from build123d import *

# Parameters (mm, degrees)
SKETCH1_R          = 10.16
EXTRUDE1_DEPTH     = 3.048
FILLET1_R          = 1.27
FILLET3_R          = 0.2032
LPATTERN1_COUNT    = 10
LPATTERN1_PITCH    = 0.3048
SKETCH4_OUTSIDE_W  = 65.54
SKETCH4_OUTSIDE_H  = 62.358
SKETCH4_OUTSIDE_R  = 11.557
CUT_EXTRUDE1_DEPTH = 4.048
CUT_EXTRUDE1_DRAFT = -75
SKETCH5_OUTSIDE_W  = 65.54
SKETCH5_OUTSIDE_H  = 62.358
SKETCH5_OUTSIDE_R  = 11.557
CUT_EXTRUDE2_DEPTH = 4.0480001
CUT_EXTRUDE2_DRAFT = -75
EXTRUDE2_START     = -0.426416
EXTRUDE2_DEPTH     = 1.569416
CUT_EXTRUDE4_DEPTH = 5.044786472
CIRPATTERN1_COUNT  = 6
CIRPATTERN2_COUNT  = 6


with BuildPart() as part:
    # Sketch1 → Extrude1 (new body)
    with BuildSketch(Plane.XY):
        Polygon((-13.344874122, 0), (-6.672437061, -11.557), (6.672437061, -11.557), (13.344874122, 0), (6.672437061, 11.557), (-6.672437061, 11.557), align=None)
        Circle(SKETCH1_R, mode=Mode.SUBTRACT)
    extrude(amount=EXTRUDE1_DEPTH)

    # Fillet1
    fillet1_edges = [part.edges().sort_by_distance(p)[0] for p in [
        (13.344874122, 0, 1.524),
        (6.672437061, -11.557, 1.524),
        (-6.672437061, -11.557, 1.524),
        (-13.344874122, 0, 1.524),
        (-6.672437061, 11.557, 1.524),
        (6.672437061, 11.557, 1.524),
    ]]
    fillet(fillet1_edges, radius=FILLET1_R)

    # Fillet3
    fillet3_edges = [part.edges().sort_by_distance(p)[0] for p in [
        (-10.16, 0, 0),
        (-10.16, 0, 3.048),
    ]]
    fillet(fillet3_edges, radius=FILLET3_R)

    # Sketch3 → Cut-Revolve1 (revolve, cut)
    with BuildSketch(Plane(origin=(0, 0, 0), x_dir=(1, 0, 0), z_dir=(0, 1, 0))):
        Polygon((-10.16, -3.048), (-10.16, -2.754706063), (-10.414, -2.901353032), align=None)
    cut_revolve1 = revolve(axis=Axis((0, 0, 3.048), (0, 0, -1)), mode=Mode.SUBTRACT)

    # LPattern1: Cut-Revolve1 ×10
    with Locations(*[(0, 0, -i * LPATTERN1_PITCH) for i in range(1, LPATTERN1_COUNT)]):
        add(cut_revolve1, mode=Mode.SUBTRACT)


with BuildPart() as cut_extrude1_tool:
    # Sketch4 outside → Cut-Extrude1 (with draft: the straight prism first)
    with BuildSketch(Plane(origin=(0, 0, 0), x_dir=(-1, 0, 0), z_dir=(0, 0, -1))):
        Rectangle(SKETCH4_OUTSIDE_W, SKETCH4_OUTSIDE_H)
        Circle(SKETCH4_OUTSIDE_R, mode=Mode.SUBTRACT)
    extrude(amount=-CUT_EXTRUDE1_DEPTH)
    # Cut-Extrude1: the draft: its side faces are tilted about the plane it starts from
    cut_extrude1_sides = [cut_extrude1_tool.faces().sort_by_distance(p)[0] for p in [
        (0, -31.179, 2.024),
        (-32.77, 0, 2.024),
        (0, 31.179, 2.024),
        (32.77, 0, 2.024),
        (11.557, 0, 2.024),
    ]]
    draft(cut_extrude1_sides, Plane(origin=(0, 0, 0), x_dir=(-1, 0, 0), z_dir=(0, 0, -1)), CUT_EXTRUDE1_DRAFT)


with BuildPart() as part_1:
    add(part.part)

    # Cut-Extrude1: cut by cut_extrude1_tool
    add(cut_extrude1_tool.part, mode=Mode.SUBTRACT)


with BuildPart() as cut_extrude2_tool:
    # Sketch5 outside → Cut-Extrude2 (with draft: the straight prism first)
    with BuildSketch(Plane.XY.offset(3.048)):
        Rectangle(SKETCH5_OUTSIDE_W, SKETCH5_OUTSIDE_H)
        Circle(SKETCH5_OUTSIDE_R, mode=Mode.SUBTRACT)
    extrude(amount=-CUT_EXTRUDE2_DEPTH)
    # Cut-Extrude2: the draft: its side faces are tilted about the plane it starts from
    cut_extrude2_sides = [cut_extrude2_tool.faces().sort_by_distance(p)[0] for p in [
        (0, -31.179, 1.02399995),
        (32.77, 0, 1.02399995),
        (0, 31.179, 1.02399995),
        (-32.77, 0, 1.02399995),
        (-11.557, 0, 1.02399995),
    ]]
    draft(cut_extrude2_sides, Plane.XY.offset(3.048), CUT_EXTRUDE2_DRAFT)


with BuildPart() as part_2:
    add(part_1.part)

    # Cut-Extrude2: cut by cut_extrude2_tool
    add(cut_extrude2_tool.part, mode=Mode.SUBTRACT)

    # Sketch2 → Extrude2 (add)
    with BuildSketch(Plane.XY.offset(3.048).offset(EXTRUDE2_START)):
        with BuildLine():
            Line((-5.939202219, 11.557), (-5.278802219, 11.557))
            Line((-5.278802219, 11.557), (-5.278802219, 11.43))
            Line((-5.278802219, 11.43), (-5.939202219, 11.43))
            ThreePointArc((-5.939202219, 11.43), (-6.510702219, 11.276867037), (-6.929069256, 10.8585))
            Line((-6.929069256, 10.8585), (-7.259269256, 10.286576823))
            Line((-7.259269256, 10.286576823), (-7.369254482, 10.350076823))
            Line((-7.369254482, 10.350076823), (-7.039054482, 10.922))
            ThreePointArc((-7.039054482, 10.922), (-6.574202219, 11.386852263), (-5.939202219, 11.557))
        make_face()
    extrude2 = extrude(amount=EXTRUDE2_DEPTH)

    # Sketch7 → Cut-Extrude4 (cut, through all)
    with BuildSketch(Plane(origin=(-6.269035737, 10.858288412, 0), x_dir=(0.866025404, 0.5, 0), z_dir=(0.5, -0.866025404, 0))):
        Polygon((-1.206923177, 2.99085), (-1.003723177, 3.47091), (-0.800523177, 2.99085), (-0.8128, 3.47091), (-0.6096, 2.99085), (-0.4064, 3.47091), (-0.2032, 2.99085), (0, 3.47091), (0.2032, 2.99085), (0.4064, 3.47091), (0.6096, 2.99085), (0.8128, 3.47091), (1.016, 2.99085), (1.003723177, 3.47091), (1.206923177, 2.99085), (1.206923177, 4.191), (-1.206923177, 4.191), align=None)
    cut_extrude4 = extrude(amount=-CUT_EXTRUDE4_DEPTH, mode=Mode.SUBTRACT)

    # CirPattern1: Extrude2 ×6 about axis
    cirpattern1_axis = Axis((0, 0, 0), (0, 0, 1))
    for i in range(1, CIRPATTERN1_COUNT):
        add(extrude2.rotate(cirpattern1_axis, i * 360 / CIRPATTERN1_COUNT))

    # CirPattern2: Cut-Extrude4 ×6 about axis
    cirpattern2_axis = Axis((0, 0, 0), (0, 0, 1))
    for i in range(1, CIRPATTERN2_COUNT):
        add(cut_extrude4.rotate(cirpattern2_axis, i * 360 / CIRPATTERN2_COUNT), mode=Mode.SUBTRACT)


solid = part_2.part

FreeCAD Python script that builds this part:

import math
import FreeCAD as App
import Part
import Sketcher

V = App.Vector
Q = App.Units.Quantity


def edges_at(feature, points):
    """Names of the edges that pass closest to the given points."""
    edges = feature.Shape.Edges
    near = lambda p: min(range(len(edges)), key=lambda i: edges[i].distToShape(Part.Vertex(*p))[0])
    return sorted({f"Edge{near(p) + 1}" for p in points})


def faces_at(feature, points):
    """Names of the faces that lie closest to the given points."""
    faces = feature.Shape.Faces
    near = lambda p: min(range(len(faces)), key=lambda i: faces[i].distToShape(Part.Vertex(*p))[0])
    return sorted({f"Face{near(p) + 1}" for p in points})


def add_polygon(sketch, points):
    """Adds a closed chain of lines whose ends are joined by coincident constraints."""
    first, n = sketch.GeometryCount, len(points)
    for a, b in zip(points, points[1:] + points[:1]):
        sketch.addGeometry(Part.LineSegment(App.Vector(*a, 0), App.Vector(*b, 0)), False)
    for i in range(n):
        sketch.addConstraint(Sketcher.Constraint("Coincident", first + i, 2, first + (i + 1) % n, 1))

doc = App.newDocument("Part")
params = doc.addObject("Spreadsheet::Sheet", "Params")
for row, (alias, value) in enumerate([
    ("sketch1_diameter", "0.8 in"),
    ("pad1_length", "0.12 in"),
    ("fillet_radius", "0.05 in"),
    ("fillet2_radius", "0.008 in"),
    ("groove_angle", "360 deg"),
    ("linearpattern_pitch", "0.012 in"),
    ("sketch3_diameter", "0.91 in"),
    ("pad2_length", "4.048 mm"),
    ("draft_angle", "75 deg"),
    ("sketch4_diameter", "0.91 in"),
    ("pad3_length", "4.048 mm"),
    ("draft2_angle", "75 deg"),
    ("sketch5_radius", "0.05 in"),
    ("sketch5_radius2", "0.045 in"),
    ("sketch5_width", "0.026 in"),
    ("sketch5_length", "0.026 in"),
    ("pad4_length", "1.569416 mm"),
], start=1):
    params.set(f"A{row}", alias)
    params.set(f"B{row}", "=" + value)
    params.setAlias(f"B{row}", alias)

body = doc.addObject("PartDesign::Body", "Body")

sketch1 = doc.addObject("Sketcher::SketchObject", "Sketch")
body.addObject(sketch1)
sketch1.AttachmentSupport = (doc.XY_Plane, [""])
sketch1.MapMode = "FlatFace"
add_polygon(sketch1, [(-13, 0), (-7, -12), (7, -12), (13, 0), (7, 12), (-7, 12)])
sketch1.addGeometry(Part.Circle(V(0, 0, 0), V(0, 0, 1), 10), False)
sketch1.addConstraint([
    Sketcher.Constraint("Horizontal", 1),
    Sketcher.Constraint("Horizontal", 4),
    Sketcher.Constraint("Coincident", 6, 3, -1, 1),
    Sketcher.Constraint("Symmetric", 0, 2, 3, 2, -1, 1),
    Sketcher.Constraint("Symmetric", 2, 2, 5, 2, -1, 1),
    Sketcher.Constraint("PointOnObject", 2, 2, -1),
    Sketcher.Constraint("Parallel", 2, 5),
    Sketcher.Constraint("Vertical", 1, 2, 3, 2),
    Sketcher.Constraint("Diameter", 6, Q("0.8 in")),
    Sketcher.Constraint("Angle", 0, Q("-60 deg")),
    Sketcher.Constraint("DistanceY", 1, 2, 3, 2, Q("0.91 in")),
    Sketcher.Constraint("DistanceX", 1, 1, 1, 2, Q("13.344874 mm")),
])
sketch1.setExpression("Constraints[14]", "Params.sketch1_diameter")
pad1 = doc.addObject("PartDesign::Pad", "Pad")
body.addObject(pad1)
pad1.Profile = sketch1
pad1.setExpression("Length", "Params.pad1_length")
doc.recompute()

fillet = doc.addObject("PartDesign::Fillet", "Fillet")
body.addObject(fillet)
fillet.Base = (pad1, edges_at(pad1, [
    (13.345, 0, 1.524),
    (6.672, -11.557, 1.524),
    (-6.672, -11.557, 1.524),
    (-13.345, 0, 1.524),
    (-6.672, 11.557, 1.524),
    (6.672, 11.557, 1.524),
]))
fillet.setExpression("Radius", "Params.fillet_radius")
doc.recompute()

fillet2 = doc.addObject("PartDesign::Fillet", "Fillet001")
body.addObject(fillet2)
fillet2.Base = (fillet, edges_at(fillet, [(-10.16, 0, 0), (-10.16, 0, 3.048)]))
fillet2.setExpression("Radius", "Params.fillet2_radius")

sketch2 = doc.addObject("Sketcher::SketchObject", "Sketch001")
body.addObject(sketch2)
sketch2.AttachmentSupport = (doc.XZ_Plane, [""])
sketch2.MapMode = "FlatFace"
add_polygon(sketch2, [(-10.16, 3.05), (-10.16, 2.75), (-10.41, 2.9)])
sketch2.addConstraint([
    Sketcher.Constraint("Vertical", 0),
    Sketcher.Constraint("Equal", 1, 2),
    Sketcher.Constraint("Angle", 1, Q("150 deg")),
    Sketcher.Constraint("DistanceX", 0, 2, -1, 1, Q("0.4 in")),
    Sketcher.Constraint("DistanceX", 1, 2, -1, 1, Q("0.41 in")),
    Sketcher.Constraint("DistanceY", -1, 1, 2, 2, Q("0.12 in")),
])
groove = doc.addObject("PartDesign::Groove", "Groove")
body.addObject(groove)
groove.Profile = sketch2
groove.ReferenceAxis = (sketch2, ["V_Axis"])
groove.setExpression("Angle", "Params.groove_angle")
doc.recompute()

linearpattern = doc.addObject("PartDesign::LinearPattern", "LinearPattern")
body.addObject(linearpattern)
linearpattern.Originals = [groove]
linearpattern.Direction = (doc.Z_Axis, [""])
linearpattern.Mode = "offset"
linearpattern.setExpression("Offset", "Params.linearpattern_pitch")
linearpattern.Occurrences = 10
linearpattern.Reversed = True
body.Tip = linearpattern
body2 = doc.addObject("PartDesign::Body", "Body001")

sketch3 = doc.addObject("Sketcher::SketchObject", "Sketch002")
body2.addObject(sketch3)
sketch3.AttachmentSupport = (doc.getObject("XY_Plane001"), [""])
sketch3.MapMode = "FlatFace"
add_polygon(sketch3, [(33, 31), (33, -31), (-33, -31), (-33, 31)])
sketch3.addGeometry(Part.Circle(V(0, 0, 0), V(0, 0, 1), 12), False)
sketch3.addConstraint([
    Sketcher.Constraint("Vertical", 0),
    Sketcher.Constraint("Horizontal", 1),
    Sketcher.Constraint("Vertical", 2),
    Sketcher.Constraint("Horizontal", 3),
    Sketcher.Constraint("Coincident", 4, 3, -1, 1),
    Sketcher.Constraint("Symmetric", 0, 2, 2, 2, -1, 1),
    Sketcher.Constraint("Diameter", 4, Q("0.91 in")),
    Sketcher.Constraint("DistanceX", 1, 2, 1, 1, Q("65.54 mm")),
    Sketcher.Constraint("DistanceY", 0, 2, 0, 1, Q("62.358 mm")),
])
sketch3.setExpression("Constraints[10]", "Params.sketch3_diameter")
pad2 = doc.addObject("PartDesign::Pad", "Pad001")
body2.addObject(pad2)
pad2.Profile = sketch3
pad2.setExpression("Length", "Params.pad2_length")
doc.recompute()

draft = doc.addObject("PartDesign::Draft", "Draft")
body2.addObject(draft)
draft.Base = (pad2, faces_at(pad2, [
    (0, -31.179, 2.024),
    (-32.77, 0, 2.024),
    (0, 31.179, 2.024),
    (32.77, 0, 2.024),
    (11.557, 0, 2.024),
]))
draft.NeutralPlane = (doc.getObject("XY_Plane001"), [""])
draft.setExpression("Angle", "Params.draft_angle")
draft.Reversed = False
doc.recompute()

boolean = doc.addObject("PartDesign::Boolean", "Boolean")
body.addObject(boolean)
boolean.Type = "Cut"
boolean.addObjects([body2])
body3 = doc.addObject("PartDesign::Body", "Body002")

sketch4 = doc.addObject("Sketcher::SketchObject", "Sketch003")
body3.addObject(sketch4)
sketch4.AttachmentSupport = (doc.getObject("XY_Plane002"), [""])
sketch4.MapMode = "FlatFace"
sketch4.AttachmentOffset = App.Placement(V(0, 0, 0.12 * 25.4), App.Rotation())
add_polygon(sketch4, [(-33, 31), (-33, -31), (33, -31), (33, 31)])
sketch4.addGeometry(Part.Circle(V(0, 0, 0), V(0, 0, 1), 12), False)
sketch4.addConstraint([
    Sketcher.Constraint("Vertical", 0),
    Sketcher.Constraint("Horizontal", 1),
    Sketcher.Constraint("Vertical", 2),
    Sketcher.Constraint("Horizontal", 3),
    Sketcher.Constraint("Coincident", 4, 3, -1, 1),
    Sketcher.Constraint("Symmetric", 0, 2, 2, 2, -1, 1),
    Sketcher.Constraint("Diameter", 4, Q("0.91 in")),
    Sketcher.Constraint("DistanceX", 1, 1, 1, 2, Q("65.54 mm")),
    Sketcher.Constraint("DistanceY", 0, 2, 0, 1, Q("62.358 mm")),
])
sketch4.setExpression("Constraints[10]", "Params.sketch4_diameter")
pad3 = doc.addObject("PartDesign::Pad", "Pad002")
body3.addObject(pad3)
pad3.Profile = sketch4
pad3.setExpression("Length", "Params.pad3_length")
pad3.Reversed = True
doc.recompute()

datumplane = doc.addObject("PartDesign::Plane", "DatumPlane")
body3.addObject(datumplane)
datumplane.AttachmentSupport = (doc.getObject("XY_Plane002"), [""])
datumplane.MapMode = "FlatFace"
datumplane.AttachmentOffset = App.Placement(V(0, 0, 0.12 * 25.4), App.Rotation())
draft2 = doc.addObject("PartDesign::Draft", "Draft001")
body3.addObject(draft2)
draft2.Base = (pad3, faces_at(pad3, [
    (0, -31.179, 1.024),
    (32.77, 0, 1.024),
    (0, 31.179, 1.024),
    (-32.77, 0, 1.024),
    (-11.557, 0, 1.024),
]))
draft2.NeutralPlane = (datumplane, [""])
draft2.setExpression("Angle", "Params.draft2_angle")
draft2.Reversed = True
doc.recompute()

boolean2 = doc.addObject("PartDesign::Boolean", "Boolean001")
body.addObject(boolean2)
boolean2.Type = "Cut"
boolean2.addObjects([body3])

sketch5 = doc.addObject("Sketcher::SketchObject", "Sketch004")
body.addObject(sketch5)
sketch5.AttachmentSupport = (doc.XY_Plane, [""])
sketch5.MapMode = "FlatFace"
sketch5.AttachmentOffset = App.Placement(V(0, 0, 2.621584), App.Rotation())
sketch5.addGeometry([
    Part.LineSegment(V(-5.28, 11.56, 0), V(-5.94, 11.56, 0)),
    Part.ArcOfCircle(Part.Circle(V(-5.94, 10.29, 0), V(0, 0, 1), 1.27), math.radians(90), math.radians(150)),
    Part.LineSegment(V(-7.04, 10.92, 0), V(-7.37, 10.35, 0)),
    Part.LineSegment(V(-7.37, 10.35, 0), V(-7.26, 10.29, 0)),
    Part.LineSegment(V(-7.26, 10.29, 0), V(-6.93, 10.86, 0)),
    Part.ArcOfCircle(Part.Circle(V(-5.94, 10.29, 0), V(0, 0, 1), 1.14), math.radians(90), math.radians(150)),
    Part.LineSegment(V(-5.94, 11.43, 0), V(-5.28, 11.43, 0)),
    Part.LineSegment(V(-5.28, 11.43, 0), V(-5.28, 11.56, 0)),
], False)
sketch5.addConstraint([
    Sketcher.Constraint("Tangent", 0, 2, 1, 1),
    Sketcher.Constraint("Tangent", 1, 2, 2, 1),
    Sketcher.Constraint("Coincident", 2, 2, 3, 1),
    Sketcher.Constraint("Coincident", 3, 2, 4, 1),
    Sketcher.Constraint("Tangent", 4, 2, 5, 2),
    Sketcher.Constraint("Tangent", 5, 1, 6, 1),
    Sketcher.Constraint("Coincident", 6, 2, 7, 1),
    Sketcher.Constraint("Coincident", 7, 2, 0, 1),
    Sketcher.Constraint("Horizontal", 0),
    Sketcher.Constraint("Horizontal", 6),
    Sketcher.Constraint("Vertical", 7),
    Sketcher.Constraint("Coincident", 5, 3, 1, 3),
    Sketcher.Constraint("Perpendicular", 2, 3),
    Sketcher.Constraint("Perpendicular", 3, 4),
    Sketcher.Constraint("Radius", 1, Q("0.05 in")),
    Sketcher.Constraint("Angle", 2, Q("-120 deg")),
    Sketcher.Constraint("Radius", 5, Q("0.045 in")),
    Sketcher.Constraint("DistanceX", 0, 2, 0, 1, Q("0.026 in")),
    Sketcher.Constraint("DistanceY", -1, 1, 1, 2, Q("0.43 in")),
    Sketcher.Constraint("Distance", 2, Q("0.026 in")),
    Sketcher.Constraint("DistanceX", 3, 2, -1, 1, Q("7.259269 mm")),
])
sketch5.setExpression("Constraints[14]", "Params.sketch5_radius")
sketch5.setExpression("Constraints[16]", "Params.sketch5_radius2")
sketch5.setExpression("Constraints[17]", "Params.sketch5_width")
sketch5.setExpression("Constraints[19]", "Params.sketch5_length")
pad4 = doc.addObject("PartDesign::Pad", "Pad003")
body.addObject(pad4)
pad4.Profile = sketch5
pad4.setExpression("Length", "Params.pad4_length")

sketch6 = doc.addObject("Sketcher::SketchObject", "Sketch005")
body.addObject(sketch6)
sketch6.Placement = App.Placement(V(-6.269036, 10.858288, 0), App.Rotation(V(0.866025404, 0.5, 0), V(0, 0, 1), V(0.5, -0.866025404, 0), "ZXY"))
add_polygon(sketch6, [(-1.21, 2.99), (-1, 3.47), (-0.8, 2.99), (-0.81, 3.47), (-0.61, 2.99), (-0.41, 3.47), (-0.2, 2.99), (0, 3.47), (0.2, 2.99), (0.41, 3.47), (0.61, 2.99), (0.81, 3.47), (1.02, 2.99), (1, 3.47), (1.21, 2.99), (1.21, 4.19), (-1.21, 4.19)])
sketch6.addConstraint([
    Sketcher.Constraint("Vertical", 14),
    Sketcher.Constraint("Horizontal", 15),
    Sketcher.Constraint("Vertical", 16),
    Sketcher.Constraint("Symmetric", 5, 2, 7, 2, -2),
    Sketcher.Constraint("Symmetric", 4, 2, 8, 2, -2),
    Sketcher.Constraint("Symmetric", 3, 2, 9, 2, -2),
    Sketcher.Constraint("Symmetric", 2, 2, 10, 2, -2),
    Sketcher.Constraint("Symmetric", 0, 2, 12, 2, -2),
    Sketcher.Constraint("Symmetric", 13, 2, 16, 2, -2),
    Sketcher.Constraint("PointOnObject", 6, 2, -2),
    Sketcher.Constraint("Parallel", 1, 3),
    Sketcher.Constraint("Parallel", 0, 4),
    Sketcher.Constraint("Parallel", 3, 5),
    Sketcher.Constraint("Parallel", 4, 6),
    Sketcher.Constraint("Parallel", 5, 7),
    Sketcher.Constraint("Parallel", 9, 11),
    Sketcher.Constraint("Parallel", 2, 12),
    Sketcher.Constraint("Horizontal", 0, 2, 2, 2),
    Sketcher.Constraint("Horizontal", 1, 2, 3, 2),
    Sketcher.Constraint("Horizontal", 2, 2, 4, 2),
    Sketcher.Constraint("Horizontal", 3, 2, 5, 2),
    Sketcher.Constraint("Horizontal", 4, 2, 6, 2),
    Sketcher.Constraint("Horizontal", 11, 2, 13, 2),
    Sketcher.Constraint("DistanceX", -1, 1, 11, 2, Q("0.04 in")),
    Sketcher.Constraint("DistanceY", -1, 1, 14, 2, Q("0.165 in")),
    Sketcher.Constraint("DistanceY", 1, 2, 0, 2, Q("0.0189 in")),
    Sketcher.Constraint("DistanceY", 14, 1, 14, 2, Q("1.20015 mm")),
    Sketcher.Constraint("DistanceX", 15, 2, 15, 1, Q("2.413846 mm")),
])
pocket1 = doc.addObject("PartDesign::Pocket", "Pocket")
body.addObject(pocket1)
pocket1.Profile = sketch6
pocket1.Type = "ThroughAll"
doc.recompute()

polarpattern = doc.addObject("PartDesign::PolarPattern", "PolarPattern")
body.addObject(polarpattern)
polarpattern.Originals = [pad4]
polarpattern.Axis = (doc.Z_Axis, [""])
polarpattern.Angle = 360
polarpattern.Occurrences = 6
body.Tip = polarpattern
doc.recompute()

polarpattern2 = doc.addObject("PartDesign::PolarPattern", "PolarPattern001")
body.addObject(polarpattern2)
polarpattern2.Originals = [pocket1]
polarpattern2.Axis = (doc.Z_Axis, [""])
polarpattern2.Angle = 360
polarpattern2.Occurrences = 6
body.Tip = polarpattern2

doc.recompute()
